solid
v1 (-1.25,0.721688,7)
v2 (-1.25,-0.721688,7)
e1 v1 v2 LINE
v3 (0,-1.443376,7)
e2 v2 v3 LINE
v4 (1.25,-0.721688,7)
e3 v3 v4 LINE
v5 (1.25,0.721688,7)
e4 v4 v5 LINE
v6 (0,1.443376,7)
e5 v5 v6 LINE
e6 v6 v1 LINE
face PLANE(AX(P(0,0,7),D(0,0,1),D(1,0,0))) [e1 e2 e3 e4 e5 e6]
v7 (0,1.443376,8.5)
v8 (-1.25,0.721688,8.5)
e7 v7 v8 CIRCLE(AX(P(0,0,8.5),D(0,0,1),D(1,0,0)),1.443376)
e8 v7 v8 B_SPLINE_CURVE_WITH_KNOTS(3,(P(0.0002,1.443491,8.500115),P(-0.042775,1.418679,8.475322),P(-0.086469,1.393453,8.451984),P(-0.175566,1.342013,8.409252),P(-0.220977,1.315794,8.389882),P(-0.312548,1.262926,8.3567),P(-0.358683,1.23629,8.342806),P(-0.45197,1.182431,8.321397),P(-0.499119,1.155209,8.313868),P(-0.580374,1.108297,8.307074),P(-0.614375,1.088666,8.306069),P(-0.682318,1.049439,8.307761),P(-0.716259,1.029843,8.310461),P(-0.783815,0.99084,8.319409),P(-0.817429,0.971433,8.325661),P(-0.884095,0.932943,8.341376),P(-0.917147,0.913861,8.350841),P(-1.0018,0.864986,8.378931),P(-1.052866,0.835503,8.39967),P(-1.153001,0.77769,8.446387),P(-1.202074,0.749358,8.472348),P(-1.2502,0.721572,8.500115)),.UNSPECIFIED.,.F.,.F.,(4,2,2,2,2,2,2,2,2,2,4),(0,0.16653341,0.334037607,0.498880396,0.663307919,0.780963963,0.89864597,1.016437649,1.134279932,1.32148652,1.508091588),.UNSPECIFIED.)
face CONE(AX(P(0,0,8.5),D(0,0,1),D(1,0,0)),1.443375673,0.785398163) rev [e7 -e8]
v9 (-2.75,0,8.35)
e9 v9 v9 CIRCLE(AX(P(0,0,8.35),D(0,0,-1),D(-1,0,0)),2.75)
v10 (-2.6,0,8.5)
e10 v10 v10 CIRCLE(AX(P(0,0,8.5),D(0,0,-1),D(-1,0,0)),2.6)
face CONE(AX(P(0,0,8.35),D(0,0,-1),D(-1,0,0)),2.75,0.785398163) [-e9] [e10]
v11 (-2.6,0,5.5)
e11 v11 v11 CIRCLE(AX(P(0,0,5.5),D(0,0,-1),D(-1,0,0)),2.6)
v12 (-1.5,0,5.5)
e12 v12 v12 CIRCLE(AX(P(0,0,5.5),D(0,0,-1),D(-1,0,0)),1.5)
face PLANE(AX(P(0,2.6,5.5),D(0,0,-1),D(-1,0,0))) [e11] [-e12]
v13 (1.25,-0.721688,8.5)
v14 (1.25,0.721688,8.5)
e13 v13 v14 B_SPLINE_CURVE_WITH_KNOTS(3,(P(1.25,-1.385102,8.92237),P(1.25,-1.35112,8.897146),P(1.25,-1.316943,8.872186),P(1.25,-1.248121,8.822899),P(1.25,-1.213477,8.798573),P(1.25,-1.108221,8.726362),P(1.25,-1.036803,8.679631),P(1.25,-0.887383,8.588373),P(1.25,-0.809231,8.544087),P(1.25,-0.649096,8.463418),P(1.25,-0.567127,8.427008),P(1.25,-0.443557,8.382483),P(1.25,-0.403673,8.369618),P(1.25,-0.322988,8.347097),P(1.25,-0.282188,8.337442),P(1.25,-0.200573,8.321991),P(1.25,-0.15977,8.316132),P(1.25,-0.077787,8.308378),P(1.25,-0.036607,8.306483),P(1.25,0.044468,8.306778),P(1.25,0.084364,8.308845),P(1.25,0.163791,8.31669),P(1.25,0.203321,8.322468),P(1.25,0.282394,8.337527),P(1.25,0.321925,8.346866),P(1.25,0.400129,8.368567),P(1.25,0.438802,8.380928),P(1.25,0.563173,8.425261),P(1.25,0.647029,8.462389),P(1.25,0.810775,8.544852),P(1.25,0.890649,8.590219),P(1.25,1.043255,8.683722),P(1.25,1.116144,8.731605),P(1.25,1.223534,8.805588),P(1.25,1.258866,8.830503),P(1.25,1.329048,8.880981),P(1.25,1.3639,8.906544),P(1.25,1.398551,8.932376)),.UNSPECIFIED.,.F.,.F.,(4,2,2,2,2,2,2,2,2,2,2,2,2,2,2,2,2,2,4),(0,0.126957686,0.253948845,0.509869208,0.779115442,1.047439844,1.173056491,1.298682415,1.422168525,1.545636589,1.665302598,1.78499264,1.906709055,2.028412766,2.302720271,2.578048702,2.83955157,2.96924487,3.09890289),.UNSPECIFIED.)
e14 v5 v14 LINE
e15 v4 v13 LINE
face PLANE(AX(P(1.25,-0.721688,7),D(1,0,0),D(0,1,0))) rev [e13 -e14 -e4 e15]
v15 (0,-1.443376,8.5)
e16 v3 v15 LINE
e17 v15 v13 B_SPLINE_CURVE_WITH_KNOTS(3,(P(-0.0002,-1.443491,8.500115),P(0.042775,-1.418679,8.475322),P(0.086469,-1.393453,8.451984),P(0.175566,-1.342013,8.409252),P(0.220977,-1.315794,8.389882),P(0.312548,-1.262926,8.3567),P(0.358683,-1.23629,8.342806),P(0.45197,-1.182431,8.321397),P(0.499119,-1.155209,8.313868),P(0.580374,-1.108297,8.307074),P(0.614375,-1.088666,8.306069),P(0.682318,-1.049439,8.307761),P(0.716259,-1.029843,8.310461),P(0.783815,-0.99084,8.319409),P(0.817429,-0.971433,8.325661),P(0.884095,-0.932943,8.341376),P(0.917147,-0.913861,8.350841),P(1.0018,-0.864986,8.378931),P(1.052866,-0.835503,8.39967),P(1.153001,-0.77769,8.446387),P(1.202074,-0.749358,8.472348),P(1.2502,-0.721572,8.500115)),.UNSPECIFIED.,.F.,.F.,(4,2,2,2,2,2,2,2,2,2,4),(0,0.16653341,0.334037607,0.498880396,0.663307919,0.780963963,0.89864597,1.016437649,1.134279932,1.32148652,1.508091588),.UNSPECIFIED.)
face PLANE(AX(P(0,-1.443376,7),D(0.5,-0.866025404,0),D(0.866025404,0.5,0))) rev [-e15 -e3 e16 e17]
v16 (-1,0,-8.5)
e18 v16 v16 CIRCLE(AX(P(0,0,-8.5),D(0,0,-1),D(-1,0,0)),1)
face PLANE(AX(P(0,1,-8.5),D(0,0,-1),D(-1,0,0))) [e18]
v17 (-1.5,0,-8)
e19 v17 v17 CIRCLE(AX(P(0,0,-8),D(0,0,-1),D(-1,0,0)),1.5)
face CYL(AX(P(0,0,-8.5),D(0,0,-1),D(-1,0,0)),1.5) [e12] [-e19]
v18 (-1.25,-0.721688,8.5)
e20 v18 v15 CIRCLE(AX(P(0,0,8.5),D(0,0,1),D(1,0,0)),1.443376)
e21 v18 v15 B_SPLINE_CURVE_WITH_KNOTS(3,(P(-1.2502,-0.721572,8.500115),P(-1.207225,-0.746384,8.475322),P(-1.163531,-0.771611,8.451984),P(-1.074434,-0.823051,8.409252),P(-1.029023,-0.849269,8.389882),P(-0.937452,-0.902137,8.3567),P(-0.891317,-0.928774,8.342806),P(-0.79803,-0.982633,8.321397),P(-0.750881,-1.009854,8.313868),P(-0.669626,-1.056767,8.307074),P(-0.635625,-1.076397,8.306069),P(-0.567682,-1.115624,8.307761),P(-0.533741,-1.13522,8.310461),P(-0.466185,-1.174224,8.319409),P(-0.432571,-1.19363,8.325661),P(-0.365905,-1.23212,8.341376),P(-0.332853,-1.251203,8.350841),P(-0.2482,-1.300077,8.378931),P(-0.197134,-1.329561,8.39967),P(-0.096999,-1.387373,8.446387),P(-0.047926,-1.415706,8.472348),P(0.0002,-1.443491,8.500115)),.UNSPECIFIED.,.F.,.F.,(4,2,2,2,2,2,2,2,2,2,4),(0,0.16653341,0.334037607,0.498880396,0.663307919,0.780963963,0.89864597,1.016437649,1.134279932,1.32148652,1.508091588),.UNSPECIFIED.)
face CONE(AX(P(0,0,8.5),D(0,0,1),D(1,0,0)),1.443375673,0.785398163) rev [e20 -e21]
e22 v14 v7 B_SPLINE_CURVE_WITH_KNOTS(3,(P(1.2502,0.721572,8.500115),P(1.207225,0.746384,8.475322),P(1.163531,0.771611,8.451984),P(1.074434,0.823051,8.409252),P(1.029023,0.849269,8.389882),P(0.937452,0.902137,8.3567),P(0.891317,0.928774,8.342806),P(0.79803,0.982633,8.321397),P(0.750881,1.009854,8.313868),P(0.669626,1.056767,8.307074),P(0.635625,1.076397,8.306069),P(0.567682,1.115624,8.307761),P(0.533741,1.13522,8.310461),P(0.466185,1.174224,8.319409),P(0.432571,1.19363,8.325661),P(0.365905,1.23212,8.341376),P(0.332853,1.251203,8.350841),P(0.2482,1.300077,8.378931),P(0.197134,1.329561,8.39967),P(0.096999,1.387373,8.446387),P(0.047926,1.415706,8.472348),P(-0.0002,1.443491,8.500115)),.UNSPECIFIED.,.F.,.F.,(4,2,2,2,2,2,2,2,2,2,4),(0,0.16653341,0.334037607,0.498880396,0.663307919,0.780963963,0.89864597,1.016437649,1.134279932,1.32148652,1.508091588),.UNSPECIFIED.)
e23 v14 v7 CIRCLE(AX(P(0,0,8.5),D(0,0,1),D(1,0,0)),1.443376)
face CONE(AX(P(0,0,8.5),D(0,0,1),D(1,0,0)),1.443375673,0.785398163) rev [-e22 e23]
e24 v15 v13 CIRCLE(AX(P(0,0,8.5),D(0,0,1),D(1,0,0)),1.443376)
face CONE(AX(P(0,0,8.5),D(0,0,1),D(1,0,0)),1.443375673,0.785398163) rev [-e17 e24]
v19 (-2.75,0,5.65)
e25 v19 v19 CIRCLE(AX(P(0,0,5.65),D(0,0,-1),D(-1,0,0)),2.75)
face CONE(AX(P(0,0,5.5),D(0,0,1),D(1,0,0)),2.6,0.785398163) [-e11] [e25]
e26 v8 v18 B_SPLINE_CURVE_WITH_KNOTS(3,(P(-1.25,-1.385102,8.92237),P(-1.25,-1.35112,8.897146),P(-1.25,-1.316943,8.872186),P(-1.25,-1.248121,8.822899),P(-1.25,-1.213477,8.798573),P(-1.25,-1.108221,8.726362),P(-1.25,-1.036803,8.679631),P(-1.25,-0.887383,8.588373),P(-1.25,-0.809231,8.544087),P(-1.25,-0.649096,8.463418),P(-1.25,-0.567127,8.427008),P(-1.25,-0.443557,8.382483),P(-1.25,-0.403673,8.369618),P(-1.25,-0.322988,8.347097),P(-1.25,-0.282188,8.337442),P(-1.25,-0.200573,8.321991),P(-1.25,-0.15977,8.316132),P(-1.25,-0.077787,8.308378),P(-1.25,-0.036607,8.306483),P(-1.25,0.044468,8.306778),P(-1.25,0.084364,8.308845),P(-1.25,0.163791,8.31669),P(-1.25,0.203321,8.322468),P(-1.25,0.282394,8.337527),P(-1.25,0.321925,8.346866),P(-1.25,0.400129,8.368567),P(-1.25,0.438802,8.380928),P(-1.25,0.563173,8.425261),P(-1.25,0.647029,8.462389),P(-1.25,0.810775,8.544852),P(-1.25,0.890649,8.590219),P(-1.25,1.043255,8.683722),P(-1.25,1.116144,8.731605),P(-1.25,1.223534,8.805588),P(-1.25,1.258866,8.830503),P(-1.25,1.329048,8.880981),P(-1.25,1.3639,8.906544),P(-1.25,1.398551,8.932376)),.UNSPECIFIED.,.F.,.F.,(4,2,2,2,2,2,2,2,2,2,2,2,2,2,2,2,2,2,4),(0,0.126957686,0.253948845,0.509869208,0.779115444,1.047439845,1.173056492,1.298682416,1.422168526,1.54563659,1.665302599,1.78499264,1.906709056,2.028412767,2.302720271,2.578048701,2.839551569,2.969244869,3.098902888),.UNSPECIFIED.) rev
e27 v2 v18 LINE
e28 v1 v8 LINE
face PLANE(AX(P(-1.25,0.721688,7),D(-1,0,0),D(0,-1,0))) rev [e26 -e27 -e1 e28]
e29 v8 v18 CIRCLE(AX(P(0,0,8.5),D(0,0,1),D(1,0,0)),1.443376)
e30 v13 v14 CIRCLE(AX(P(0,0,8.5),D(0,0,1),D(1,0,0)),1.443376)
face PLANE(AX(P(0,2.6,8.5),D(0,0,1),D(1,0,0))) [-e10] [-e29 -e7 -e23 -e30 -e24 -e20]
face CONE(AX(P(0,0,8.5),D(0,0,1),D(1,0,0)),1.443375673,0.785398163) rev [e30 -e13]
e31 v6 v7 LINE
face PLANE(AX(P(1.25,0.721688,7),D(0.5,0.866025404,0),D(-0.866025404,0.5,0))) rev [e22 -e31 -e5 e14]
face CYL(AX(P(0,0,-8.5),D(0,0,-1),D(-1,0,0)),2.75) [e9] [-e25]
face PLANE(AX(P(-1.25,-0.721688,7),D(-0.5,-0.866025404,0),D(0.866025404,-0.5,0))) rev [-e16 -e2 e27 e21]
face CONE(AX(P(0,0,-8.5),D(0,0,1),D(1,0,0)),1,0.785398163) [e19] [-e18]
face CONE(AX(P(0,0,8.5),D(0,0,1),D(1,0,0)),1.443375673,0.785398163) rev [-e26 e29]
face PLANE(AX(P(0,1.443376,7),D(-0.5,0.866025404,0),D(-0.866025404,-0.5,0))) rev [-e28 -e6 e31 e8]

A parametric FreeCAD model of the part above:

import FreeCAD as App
import Part
import Sketcher
from FreeCAD import Vector
Q = App.Units.Quantity


def faces_at(feature, points):
    """Names of the faces that lie closest to the given points."""
    faces = feature.Shape.Faces
    near = lambda p: min(range(len(faces)), key=lambda i: faces[i].distToShape(Part.Vertex(*p))[0])
    return sorted({f"Face{near(p) + 1}" for p in points})

doc = App.newDocument("Part")
body = doc.addObject("PartDesign::Body", "Body")

sketch1 = body.newObject("Sketcher::SketchObject", "Sketch")
sketch1.AttachmentSupport = (doc.getObject("YZ_Plane"), [""])
sketch1.MapMode = "FlatFace"
sketch1.addGeometry([
    Part.LineSegment(Vector(2.75, 5.65, 0), Vector(2.75, 8.35, 0)),
    Part.LineSegment(Vector(2.75, 8.35, 0), Vector(2.6, 8.5, 0)),
    Part.LineSegment(Vector(2.6, 8.5, 0), Vector(0, 8.5, 0)),
    Part.LineSegment(Vector(0, 8.5, 0), Vector(0, -8.5, 0)),
    Part.LineSegment(Vector(0, -8.5, 0), Vector(1, -8.5, 0)),
    Part.LineSegment(Vector(1, -8.5, 0), Vector(1.5, -8, 0)),
    Part.LineSegment(Vector(1.5, -8, 0), Vector(1.5, 5.5, 0)),
    Part.LineSegment(Vector(1.5, 5.5, 0), Vector(2.6, 5.5, 0)),
    Part.LineSegment(Vector(2.6, 5.5, 0), Vector(2.75, 5.65, 0)),
], False)
sketch1.addConstraint([
    Sketcher.Constraint("Coincident", 0, 2, 1, 1),
    Sketcher.Constraint("Coincident", 1, 2, 2, 1),
    Sketcher.Constraint("Coincident", 2, 2, 3, 1),
    Sketcher.Constraint("Coincident", 3, 2, 4, 1),
    Sketcher.Constraint("Coincident", 4, 2, 5, 1),
    Sketcher.Constraint("Coincident", 5, 2, 6, 1),
    Sketcher.Constraint("Coincident", 6, 2, 7, 1),
    Sketcher.Constraint("Coincident", 7, 2, 8, 1),
    Sketcher.Constraint("Coincident", 8, 2, 0, 1),
    Sketcher.Constraint("Vertical", 0),
    Sketcher.Constraint("Horizontal", 2),
    Sketcher.Constraint("Vertical", 3),
    Sketcher.Constraint("Horizontal", 4),
    Sketcher.Constraint("Vertical", 6),
    Sketcher.Constraint("Horizontal", 7),
    Sketcher.Constraint("Symmetric", 2, 2, 3, 2, -1, 1),
    Sketcher.Constraint("Perpendicular", 1, 5),
    Sketcher.Constraint("Parallel", 5, 8),
    Sketcher.Constraint("Vertical", 1, 2, 7, 2),
    Sketcher.Constraint("Equal", 1, 8),
    Sketcher.Constraint("DistanceX", 4, 1, 4, 2, 1.0),
    Sketcher.Constraint("DistanceY", 3, 2, 3, 1, 17.0),
    Sketcher.Constraint("DistanceX", 2, 2, 2, 1, 2.6),
    Sketcher.Constraint("DistanceX", 7, 1, 7, 2, 1.1),
    Sketcher.Constraint("DistanceY", 0, 1, 0, 2, 2.7),
    Sketcher.Constraint("DistanceY", 6, 1, 6, 2, 13.5),
])
revolution = body.newObject("PartDesign::Revolution", "Revolution")
revolution.Profile = sketch1
revolution.ReferenceAxis = (sketch1, ["V_Axis"])
revolution.Angle = 360

sketch2 = body.newObject("Sketcher::SketchObject", "Sketch001")
sketch2.AttachmentSupport = (doc.getObject("XY_Plane"), [""])
sketch2.MapMode = "FlatFace"
sketch2.AttachmentOffset = App.Placement(Vector(0, 0, 7), App.Rotation())
sketch2.addGeometry([
    Part.LineSegment(Vector(0, 1.4, 0), Vector(-1.2, 0.7, 0)),
    Part.LineSegment(Vector(-1.2, 0.7, 0), Vector(-1.2, -0.7, 0)),
    Part.LineSegment(Vector(-1.2, -0.7, 0), Vector(0, -1.4, 0)),
    Part.LineSegment(Vector(0, -1.4, 0), Vector(1.2, -0.7, 0)),
    Part.LineSegment(Vector(1.2, -0.7, 0), Vector(1.2, 0.7, 0)),
    Part.LineSegment(Vector(1.2, 0.7, 0), Vector(0, 1.4, 0)),
], False)
sketch2.addConstraint([
    Sketcher.Constraint("Coincident", 0, 2, 1, 1),
    Sketcher.Constraint("Coincident", 1, 2, 2, 1),
    Sketcher.Constraint("Coincident", 2, 2, 3, 1),
    Sketcher.Constraint("Coincident", 3, 2, 4, 1),
    Sketcher.Constraint("Coincident", 4, 2, 5, 1),
    Sketcher.Constraint("Coincident", 5, 2, 0, 1),
    Sketcher.Constraint("Vertical", 1),
    Sketcher.Constraint("Vertical", 4),
    Sketcher.Constraint("Symmetric", 0, 2, 3, 2, -1, 1),
    Sketcher.Constraint("Symmetric", 2, 2, 5, 2, -1, 1),
    Sketcher.Constraint("PointOnObject", 2, 2, -2),
    Sketcher.Constraint("Parallel", 2, 5),
    Sketcher.Constraint("Horizontal", 1, 2, 3, 2),
    Sketcher.Constraint("Angle", 0, Q("-150 deg")),
    Sketcher.Constraint("DistanceX", 1, 2, 3, 2, 2.5),
    Sketcher.Constraint("DistanceY", 1, 2, 1, 1, 1.443376),
])
pocket1 = body.newObject("PartDesign::Pocket", "Pocket")
pocket1.Profile = sketch2
pocket1.Length = 1.5
pocket1.Reversed = True
body2 = doc.addObject("PartDesign::Body", "Body001")

sketch3 = body2.newObject("Sketcher::SketchObject", "Sketch002")
sketch3.AttachmentSupport = (doc.getObject("XY_Plane001"), [""])
sketch3.MapMode = "FlatFace"
sketch3.AttachmentOffset = App.Placement(Vector(0, 0, 8.5), App.Rotation())
sketch3.addGeometry(Part.Circle(Vector(0, 0, 0), Vector(0, 0, 1), 1.4), False)
sketch3.addConstraint([
    Sketcher.Constraint("Coincident", 0, 3, -1, 1),
    Sketcher.Constraint("Diameter", 0, 2.886751),
])
pad1 = body2.newObject("PartDesign::Pad", "Pad")
pad1.Profile = sketch3
pad1.Length = 0.5
pad1.Reversed = True
doc.recompute()

datumplane = body2.newObject("PartDesign::Plane", "DatumPlane")
datumplane.AttachmentSupport = (doc.getObject("XY_Plane001"), [""])
datumplane.MapMode = "FlatFace"
datumplane.AttachmentOffset = App.Placement(Vector(0, 0, 8.5), App.Rotation())
draft = body2.newObject("PartDesign::Draft", "Draft")
draft.Base = (pad1, faces_at(pad1, [(-1.443, 0, 8.25)]))
draft.NeutralPlane = (datumplane, [""])
draft.Angle = 45
draft.Reversed = True
doc.recompute()

boolean = body.newObject("PartDesign::Boolean", "Boolean")
boolean.Type = "Cut"
boolean.addObjects([body2])

doc.recompute()
